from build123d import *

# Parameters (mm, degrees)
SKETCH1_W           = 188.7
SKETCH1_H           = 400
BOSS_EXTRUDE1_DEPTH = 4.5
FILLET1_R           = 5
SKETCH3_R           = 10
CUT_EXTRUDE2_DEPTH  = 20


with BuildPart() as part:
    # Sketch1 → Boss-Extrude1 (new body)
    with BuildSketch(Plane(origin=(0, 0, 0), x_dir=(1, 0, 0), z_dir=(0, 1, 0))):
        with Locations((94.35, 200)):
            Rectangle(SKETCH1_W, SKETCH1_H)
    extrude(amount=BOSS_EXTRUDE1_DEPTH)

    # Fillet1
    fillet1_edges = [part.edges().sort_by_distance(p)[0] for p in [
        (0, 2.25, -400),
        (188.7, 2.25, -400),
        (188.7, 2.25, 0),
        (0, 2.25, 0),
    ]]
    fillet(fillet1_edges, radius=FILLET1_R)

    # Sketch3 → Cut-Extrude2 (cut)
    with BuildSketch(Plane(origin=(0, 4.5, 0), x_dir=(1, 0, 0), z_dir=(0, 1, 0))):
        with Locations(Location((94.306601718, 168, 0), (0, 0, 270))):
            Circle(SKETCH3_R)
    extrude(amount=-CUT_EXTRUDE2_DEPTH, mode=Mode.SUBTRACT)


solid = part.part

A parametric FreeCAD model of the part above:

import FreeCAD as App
import Part
import Sketcher
from FreeCAD import Vector
Q = App.Units.Quantity


def edges_at(feature, points):
    """Names of the edges that pass closest to the given points."""
    edges = feature.Shape.Edges
    near = lambda p: min(range(len(edges)), key=lambda i: edges[i].distToShape(Part.Vertex(*p))[0])
    return sorted({f"Edge{near(p) + 1}" for p in points})


def add_polygon(sketch, points):
    """Adds a closed chain of lines whose ends are joined by coincident constraints."""
    first, n = sketch.GeometryCount, len(points)
    for a, b in zip(points, points[1:] + points[:1]):
        sketch.addGeometry(Part.LineSegment(App.Vector(*a, 0), App.Vector(*b, 0)), False)
    for i in range(n):
        sketch.addConstraint(Sketcher.Constraint("Coincident", first + i, 2, first + (i + 1) % n, 1))

doc = App.newDocument("Part")
params = doc.addObject("Spreadsheet::Sheet", "Params")
for row, (alias, value) in enumerate([
    ("sketch1_height", "400 mm"),
    ("sketch1_width", "188.7 mm"),
    ("pad1_length", "4.5 mm"),
    ("fillet_radius", "5 mm"),
    ("sketch2_diameter", "20 mm"),
    ("pocket1_length", "20 mm"),
], start=1):
    params.set(f"A{row}", alias)
    params.set(f"B{row}", "=" + value)
    params.setAlias(f"B{row}", alias)

body = doc.addObject("PartDesign::Body", "Body")

# Sketch on XZ plane
sketch1 = body.newObject("Sketcher::SketchObject", "Sketch")
sketch1.AttachmentSupport = (doc.getObject("XZ_Plane"), [""])
sketch1.MapMode = "FlatFace"
add_polygon(sketch1, [(0, -400), (0, 0), (189, 0), (189, -400)])  # lines 0-3
sketch1.addConstraint([
    Sketcher.Constraint("Vertical", 0),
    Sketcher.Constraint("Horizontal", 1),
    Sketcher.Constraint("Vertical", 2),
    Sketcher.Constraint("Horizontal", 3),
    Sketcher.Constraint("Coincident", 0, 2, -1, 1),
    Sketcher.Constraint("DistanceY", 0, 1, 0, 2, Q("400 mm")),
    Sketcher.Constraint("DistanceX", 1, 1, 1, 2, Q("188.7 mm")),
])
sketch1.setExpression("Constraints[9]", "Params.sketch1_height")
sketch1.setExpression("Constraints[10]", "Params.sketch1_width")
pad1 = body.newObject("PartDesign::Pad", "Pad")
pad1.Profile = sketch1
pad1.setExpression("Length", "Params.pad1_length")
pad1.Reversed = True
doc.recompute()

fillet = body.newObject("PartDesign::Fillet", "Fillet")
fillet.Base = (pad1, edges_at(pad1, [
    (0, 2.25, -400),
    (188.7, 2.25, -400),
    (188.7, 2.25, 0),
    (0, 2.25, 0),
]))
fillet.setExpression("Radius", "Params.fillet_radius")

# Sketch on XZ plane
sketch2 = body.newObject("Sketcher::SketchObject", "Sketch001")
sketch2.AttachmentSupport = (doc.getObject("XZ_Plane"), [""])
sketch2.MapMode = "FlatFace"
sketch2.AttachmentOffset = App.Placement(Vector(0, 0, -4.5), App.Rotation())
sketch2.addGeometry(Part.Circle(Vector(94, -168, 0), Vector(0, 0, 1), 10), False)
sketch2.addConstraint([
    Sketcher.Constraint("Diameter", 0, Q("20 mm")),
    Sketcher.Constraint("DistanceY", 0, 3, -1, 1, Q("168 mm")),
    Sketcher.Constraint("DistanceX", -1, 1, 0, 3, Q("94.306602 mm")),
])
sketch2.setExpression("Constraints[0]", "Params.sketch2_diameter")
pocket1 = body.newObject("PartDesign::Pocket", "Pocket")
pocket1.Profile = sketch2
pocket1.setExpression("Length", "Params.pocket1_length")
pocket1.Reversed = True

doc.recompute()
